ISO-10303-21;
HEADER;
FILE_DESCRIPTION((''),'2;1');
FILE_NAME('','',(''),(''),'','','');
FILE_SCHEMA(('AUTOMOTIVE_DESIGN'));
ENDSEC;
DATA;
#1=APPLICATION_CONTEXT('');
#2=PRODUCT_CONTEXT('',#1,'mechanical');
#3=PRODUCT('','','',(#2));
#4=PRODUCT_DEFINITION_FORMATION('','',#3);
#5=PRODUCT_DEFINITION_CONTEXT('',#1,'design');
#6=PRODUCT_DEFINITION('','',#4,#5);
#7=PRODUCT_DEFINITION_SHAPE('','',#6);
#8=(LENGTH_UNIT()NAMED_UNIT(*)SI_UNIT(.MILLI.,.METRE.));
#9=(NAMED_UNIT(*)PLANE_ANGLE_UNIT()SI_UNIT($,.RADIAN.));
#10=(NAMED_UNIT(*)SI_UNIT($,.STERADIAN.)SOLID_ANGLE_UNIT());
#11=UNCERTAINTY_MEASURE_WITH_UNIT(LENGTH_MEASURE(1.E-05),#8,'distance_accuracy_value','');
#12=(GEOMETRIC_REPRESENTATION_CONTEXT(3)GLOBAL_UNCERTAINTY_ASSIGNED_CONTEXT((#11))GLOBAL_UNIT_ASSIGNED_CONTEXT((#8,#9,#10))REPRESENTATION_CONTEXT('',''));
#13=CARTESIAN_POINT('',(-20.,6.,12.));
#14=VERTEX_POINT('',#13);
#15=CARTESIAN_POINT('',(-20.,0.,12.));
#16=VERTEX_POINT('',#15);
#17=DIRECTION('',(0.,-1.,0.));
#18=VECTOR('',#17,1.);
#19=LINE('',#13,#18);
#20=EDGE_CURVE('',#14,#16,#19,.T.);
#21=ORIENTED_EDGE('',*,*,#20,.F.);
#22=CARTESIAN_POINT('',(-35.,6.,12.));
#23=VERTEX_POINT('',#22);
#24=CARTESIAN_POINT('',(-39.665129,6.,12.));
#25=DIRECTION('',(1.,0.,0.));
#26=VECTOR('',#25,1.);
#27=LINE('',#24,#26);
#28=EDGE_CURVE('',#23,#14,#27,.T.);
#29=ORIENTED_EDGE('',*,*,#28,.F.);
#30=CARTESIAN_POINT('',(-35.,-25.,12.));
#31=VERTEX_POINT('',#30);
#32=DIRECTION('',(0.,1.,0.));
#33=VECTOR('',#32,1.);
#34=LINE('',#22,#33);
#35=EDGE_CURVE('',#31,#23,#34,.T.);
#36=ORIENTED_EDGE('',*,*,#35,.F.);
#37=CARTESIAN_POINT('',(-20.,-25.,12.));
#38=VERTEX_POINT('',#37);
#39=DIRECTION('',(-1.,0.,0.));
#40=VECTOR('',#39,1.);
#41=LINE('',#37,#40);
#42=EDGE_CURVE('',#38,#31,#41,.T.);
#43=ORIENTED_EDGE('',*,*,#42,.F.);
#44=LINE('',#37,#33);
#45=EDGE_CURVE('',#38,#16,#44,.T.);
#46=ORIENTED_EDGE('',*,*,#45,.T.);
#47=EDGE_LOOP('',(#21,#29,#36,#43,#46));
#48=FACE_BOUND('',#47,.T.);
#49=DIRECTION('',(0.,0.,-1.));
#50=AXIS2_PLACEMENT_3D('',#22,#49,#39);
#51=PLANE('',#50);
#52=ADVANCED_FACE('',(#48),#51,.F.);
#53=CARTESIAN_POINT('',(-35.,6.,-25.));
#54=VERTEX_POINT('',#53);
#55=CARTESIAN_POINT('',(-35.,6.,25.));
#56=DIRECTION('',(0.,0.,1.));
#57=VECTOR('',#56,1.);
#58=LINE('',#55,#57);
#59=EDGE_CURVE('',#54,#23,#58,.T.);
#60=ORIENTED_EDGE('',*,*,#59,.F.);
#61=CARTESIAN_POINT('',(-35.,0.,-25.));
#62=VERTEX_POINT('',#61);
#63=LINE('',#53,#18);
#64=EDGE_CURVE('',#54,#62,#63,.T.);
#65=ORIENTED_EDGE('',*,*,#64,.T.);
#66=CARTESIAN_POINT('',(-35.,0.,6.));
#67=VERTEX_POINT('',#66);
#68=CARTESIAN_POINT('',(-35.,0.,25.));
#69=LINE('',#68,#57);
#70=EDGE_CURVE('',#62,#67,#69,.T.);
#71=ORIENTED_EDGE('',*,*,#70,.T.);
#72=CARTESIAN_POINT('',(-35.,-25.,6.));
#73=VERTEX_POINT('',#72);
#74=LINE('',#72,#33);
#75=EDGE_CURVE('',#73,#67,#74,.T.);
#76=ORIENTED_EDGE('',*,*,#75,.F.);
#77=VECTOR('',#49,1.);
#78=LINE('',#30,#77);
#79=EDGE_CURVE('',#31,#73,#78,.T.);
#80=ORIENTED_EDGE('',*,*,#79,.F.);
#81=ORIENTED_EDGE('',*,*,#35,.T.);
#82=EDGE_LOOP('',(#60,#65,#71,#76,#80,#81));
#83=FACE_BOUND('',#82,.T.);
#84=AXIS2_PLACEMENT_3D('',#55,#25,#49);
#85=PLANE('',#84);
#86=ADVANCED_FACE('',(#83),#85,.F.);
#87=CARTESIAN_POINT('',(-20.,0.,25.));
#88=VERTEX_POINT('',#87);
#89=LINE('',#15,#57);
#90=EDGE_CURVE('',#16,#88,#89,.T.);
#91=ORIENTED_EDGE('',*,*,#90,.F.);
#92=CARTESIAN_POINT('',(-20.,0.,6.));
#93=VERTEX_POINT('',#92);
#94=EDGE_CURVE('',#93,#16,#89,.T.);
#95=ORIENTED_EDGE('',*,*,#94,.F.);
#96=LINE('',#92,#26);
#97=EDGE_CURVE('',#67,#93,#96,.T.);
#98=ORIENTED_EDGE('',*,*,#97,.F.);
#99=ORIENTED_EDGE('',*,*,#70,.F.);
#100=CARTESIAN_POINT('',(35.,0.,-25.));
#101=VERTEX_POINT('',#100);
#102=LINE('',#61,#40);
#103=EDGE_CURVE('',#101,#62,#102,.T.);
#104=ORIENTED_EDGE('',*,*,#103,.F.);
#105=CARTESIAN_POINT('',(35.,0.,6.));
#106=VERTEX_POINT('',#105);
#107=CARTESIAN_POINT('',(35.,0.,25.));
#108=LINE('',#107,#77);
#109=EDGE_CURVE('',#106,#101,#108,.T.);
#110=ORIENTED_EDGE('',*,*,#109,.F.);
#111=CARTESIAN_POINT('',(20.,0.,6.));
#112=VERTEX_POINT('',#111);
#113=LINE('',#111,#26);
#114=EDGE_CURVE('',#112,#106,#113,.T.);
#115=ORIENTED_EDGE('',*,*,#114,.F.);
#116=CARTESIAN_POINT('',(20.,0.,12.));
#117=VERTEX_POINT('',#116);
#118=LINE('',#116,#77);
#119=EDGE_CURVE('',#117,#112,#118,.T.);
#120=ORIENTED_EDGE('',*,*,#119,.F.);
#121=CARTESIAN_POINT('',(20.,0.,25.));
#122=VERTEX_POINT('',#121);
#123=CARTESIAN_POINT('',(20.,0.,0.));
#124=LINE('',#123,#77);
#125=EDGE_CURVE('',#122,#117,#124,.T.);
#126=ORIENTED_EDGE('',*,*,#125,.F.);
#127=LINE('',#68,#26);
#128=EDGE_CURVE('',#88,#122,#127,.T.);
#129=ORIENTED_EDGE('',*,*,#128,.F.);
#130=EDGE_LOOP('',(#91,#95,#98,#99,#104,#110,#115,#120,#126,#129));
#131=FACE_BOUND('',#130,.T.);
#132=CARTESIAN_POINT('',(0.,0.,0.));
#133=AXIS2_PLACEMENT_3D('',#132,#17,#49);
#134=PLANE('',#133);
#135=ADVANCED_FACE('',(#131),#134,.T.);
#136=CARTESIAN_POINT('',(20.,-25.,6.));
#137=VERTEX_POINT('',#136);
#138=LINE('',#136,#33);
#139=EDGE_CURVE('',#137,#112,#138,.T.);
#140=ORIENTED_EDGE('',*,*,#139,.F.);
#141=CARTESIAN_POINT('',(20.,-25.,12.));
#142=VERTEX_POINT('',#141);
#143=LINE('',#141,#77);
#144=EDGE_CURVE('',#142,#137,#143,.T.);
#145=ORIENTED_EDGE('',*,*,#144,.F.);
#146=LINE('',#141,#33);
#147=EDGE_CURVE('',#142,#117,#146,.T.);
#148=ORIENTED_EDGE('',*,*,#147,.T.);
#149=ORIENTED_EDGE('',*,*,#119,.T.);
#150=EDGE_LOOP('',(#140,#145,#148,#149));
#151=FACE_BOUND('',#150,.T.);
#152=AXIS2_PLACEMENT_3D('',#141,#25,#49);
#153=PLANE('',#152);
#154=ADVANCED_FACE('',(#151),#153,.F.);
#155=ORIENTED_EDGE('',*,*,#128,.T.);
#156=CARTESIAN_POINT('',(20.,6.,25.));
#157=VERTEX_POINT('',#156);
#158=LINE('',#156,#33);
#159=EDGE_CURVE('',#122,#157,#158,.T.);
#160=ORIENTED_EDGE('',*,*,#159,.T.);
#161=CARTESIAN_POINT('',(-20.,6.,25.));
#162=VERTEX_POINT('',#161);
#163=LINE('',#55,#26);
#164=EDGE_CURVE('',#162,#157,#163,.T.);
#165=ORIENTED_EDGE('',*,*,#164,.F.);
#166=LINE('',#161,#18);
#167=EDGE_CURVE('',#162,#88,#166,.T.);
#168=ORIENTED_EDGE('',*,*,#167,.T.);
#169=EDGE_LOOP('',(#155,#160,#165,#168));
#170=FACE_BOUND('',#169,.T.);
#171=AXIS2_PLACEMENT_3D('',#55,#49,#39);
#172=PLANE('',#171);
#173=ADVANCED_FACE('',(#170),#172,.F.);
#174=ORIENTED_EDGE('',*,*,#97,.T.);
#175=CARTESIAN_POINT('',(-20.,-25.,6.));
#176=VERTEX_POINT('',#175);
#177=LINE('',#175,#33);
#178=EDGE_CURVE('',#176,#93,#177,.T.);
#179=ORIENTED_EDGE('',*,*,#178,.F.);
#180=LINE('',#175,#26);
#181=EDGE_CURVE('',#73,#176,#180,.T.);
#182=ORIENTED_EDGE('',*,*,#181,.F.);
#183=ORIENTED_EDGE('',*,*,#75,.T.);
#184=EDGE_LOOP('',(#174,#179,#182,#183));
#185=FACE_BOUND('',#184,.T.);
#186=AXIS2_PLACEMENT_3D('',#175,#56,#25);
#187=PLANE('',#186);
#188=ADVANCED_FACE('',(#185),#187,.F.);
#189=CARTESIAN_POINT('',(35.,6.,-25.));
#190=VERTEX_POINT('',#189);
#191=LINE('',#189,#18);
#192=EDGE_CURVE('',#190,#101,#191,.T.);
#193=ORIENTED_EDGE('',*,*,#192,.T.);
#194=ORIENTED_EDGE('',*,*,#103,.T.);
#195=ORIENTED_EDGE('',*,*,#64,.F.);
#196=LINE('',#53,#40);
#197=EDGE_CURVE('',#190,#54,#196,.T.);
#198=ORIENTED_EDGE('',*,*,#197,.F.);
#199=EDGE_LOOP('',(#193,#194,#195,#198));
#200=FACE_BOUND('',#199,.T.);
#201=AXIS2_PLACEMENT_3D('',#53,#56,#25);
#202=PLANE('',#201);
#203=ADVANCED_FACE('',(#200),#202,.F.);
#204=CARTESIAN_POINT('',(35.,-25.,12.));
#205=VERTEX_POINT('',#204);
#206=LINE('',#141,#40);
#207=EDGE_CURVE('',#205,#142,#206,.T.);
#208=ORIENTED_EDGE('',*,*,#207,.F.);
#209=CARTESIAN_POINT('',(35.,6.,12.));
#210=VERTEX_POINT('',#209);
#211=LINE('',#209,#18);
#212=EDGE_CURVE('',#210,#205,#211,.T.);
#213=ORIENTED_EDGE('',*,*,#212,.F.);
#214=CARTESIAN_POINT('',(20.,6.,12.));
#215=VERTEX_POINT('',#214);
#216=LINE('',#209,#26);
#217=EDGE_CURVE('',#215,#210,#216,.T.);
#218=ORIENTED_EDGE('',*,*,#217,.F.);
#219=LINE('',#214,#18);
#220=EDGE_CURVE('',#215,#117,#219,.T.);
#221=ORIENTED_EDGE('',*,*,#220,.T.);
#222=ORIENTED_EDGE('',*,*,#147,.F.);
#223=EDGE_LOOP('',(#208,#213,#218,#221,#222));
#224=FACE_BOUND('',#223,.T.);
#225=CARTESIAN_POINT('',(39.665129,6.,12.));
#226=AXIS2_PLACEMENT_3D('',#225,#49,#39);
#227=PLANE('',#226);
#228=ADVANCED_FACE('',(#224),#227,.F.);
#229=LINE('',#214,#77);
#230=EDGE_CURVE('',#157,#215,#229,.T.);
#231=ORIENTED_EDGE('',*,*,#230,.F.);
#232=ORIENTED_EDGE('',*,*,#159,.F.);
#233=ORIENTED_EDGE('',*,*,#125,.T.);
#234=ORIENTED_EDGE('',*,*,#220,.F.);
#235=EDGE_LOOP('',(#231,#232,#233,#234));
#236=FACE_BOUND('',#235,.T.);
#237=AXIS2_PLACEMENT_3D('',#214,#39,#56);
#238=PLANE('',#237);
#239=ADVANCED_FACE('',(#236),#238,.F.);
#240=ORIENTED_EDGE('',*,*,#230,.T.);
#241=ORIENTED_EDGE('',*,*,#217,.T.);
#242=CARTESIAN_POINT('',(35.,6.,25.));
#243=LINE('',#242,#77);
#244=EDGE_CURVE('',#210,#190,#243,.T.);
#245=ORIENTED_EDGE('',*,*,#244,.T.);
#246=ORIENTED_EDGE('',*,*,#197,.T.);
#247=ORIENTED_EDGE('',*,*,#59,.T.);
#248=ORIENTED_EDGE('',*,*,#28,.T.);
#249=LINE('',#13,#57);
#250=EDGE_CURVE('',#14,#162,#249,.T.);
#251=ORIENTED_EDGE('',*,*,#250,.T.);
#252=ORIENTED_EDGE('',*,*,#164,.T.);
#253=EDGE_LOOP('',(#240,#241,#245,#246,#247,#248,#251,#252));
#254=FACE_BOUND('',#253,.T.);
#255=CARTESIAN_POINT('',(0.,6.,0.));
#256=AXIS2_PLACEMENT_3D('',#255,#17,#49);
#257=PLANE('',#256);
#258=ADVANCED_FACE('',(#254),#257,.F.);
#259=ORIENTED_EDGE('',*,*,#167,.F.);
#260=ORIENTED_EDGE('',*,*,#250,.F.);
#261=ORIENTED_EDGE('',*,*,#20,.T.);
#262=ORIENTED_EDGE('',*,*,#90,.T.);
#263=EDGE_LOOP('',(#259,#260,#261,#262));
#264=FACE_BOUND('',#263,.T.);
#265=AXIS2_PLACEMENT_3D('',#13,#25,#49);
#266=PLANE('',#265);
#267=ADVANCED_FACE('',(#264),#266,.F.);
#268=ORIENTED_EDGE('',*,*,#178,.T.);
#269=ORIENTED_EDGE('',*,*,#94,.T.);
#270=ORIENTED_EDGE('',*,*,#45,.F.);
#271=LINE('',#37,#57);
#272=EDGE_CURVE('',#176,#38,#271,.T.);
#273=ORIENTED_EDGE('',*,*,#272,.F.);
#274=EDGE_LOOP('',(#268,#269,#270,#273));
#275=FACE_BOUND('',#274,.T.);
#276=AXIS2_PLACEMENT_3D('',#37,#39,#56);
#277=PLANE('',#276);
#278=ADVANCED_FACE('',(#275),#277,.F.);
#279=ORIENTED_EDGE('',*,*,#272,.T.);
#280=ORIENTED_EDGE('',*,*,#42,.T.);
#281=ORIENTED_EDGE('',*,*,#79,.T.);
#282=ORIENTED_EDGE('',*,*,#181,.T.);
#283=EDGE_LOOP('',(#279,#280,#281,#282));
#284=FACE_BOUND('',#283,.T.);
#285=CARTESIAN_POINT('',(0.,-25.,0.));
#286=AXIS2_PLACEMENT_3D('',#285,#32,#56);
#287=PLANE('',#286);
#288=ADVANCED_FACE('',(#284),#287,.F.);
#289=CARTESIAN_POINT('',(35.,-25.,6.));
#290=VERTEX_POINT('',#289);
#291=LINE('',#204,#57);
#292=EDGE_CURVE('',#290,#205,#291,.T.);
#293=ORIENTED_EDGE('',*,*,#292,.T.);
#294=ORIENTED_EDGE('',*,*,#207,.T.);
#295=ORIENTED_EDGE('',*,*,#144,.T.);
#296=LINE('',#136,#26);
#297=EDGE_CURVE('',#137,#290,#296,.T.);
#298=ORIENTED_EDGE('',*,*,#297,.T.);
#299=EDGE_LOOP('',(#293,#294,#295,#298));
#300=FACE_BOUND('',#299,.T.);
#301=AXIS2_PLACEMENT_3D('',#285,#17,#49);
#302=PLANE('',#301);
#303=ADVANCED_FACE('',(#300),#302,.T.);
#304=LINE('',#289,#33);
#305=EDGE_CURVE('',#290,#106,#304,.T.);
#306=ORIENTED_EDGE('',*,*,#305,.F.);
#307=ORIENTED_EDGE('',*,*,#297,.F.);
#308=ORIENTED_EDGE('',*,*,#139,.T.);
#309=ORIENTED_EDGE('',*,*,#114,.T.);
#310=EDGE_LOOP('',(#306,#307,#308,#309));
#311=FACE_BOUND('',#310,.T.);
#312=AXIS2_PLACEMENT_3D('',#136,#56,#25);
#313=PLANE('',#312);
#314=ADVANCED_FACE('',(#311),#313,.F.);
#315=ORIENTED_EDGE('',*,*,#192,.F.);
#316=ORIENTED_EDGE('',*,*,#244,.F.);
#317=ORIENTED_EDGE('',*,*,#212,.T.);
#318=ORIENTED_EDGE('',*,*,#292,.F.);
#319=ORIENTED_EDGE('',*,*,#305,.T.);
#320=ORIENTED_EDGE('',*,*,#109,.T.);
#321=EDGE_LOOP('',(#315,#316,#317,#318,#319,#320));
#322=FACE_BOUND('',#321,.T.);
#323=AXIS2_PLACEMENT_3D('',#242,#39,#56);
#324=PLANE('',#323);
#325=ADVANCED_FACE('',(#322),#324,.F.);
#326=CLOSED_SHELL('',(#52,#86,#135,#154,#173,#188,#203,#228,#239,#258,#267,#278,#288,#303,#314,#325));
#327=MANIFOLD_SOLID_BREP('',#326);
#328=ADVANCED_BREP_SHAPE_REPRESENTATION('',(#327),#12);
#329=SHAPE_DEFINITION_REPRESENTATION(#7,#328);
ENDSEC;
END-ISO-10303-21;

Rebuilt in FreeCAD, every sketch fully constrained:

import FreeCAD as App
import Part
import Sketcher
Q = App.Units.Quantity


def add_polygon(sketch, points):
    """Adds a closed chain of lines whose ends are joined by coincident constraints."""
    first, n = sketch.GeometryCount, len(points)
    for a, b in zip(points, points[1:] + points[:1]):
        sketch.addGeometry(Part.LineSegment(App.Vector(*a, 0), App.Vector(*b, 0)), False)
    for i in range(n):
        sketch.addConstraint(Sketcher.Constraint("Coincident", first + i, 2, first + (i + 1) % n, 1))

doc = App.newDocument("Part")
body = doc.addObject("PartDesign::Body", "Body")

sketch1 = doc.addObject("Sketcher::SketchObject", "Sketch")
body.addObject(sketch1)
sketch1.AttachmentSupport = (doc.XZ_Plane, [""])
sketch1.MapMode = "FlatFace"
add_polygon(sketch1, [(-35, -25), (-35, 25), (35, 25), (35, -25)])
sketch1.addConstraint(Sketcher.Constraint("Vertical", 0))
sketch1.addConstraint(Sketcher.Constraint("Horizontal", 1))
sketch1.addConstraint(Sketcher.Constraint("Vertical", 2))
sketch1.addConstraint(Sketcher.Constraint("Horizontal", 3))
sketch1.addConstraint(Sketcher.Constraint("Symmetric", 0, 2, 2, 2, -1, 1))
sketch1.addConstraint(Sketcher.Constraint("DistanceX", 1, 1, 1, 2, Q("70 mm")))
sketch1.addConstraint(Sketcher.Constraint("DistanceY", 0, 1, 0, 2, Q("50 mm")))
pad1 = doc.addObject("PartDesign::Pad", "Pad")
body.addObject(pad1)
pad1.Profile = sketch1
pad1.Length = 6
pad1.Reversed = True

sketch2 = doc.addObject("Sketcher::SketchObject", "Sketch001")
body.addObject(sketch2)
sketch2.AttachmentSupport = (doc.XZ_Plane, [""])
sketch2.MapMode = "FlatFace"
add_polygon(sketch2, [(-20, 12), (-20, 37), (-40, 37), (-40, 12)])
add_polygon(sketch2, [(20, 12), (40, 12), (40, 37), (20, 37)])
sketch2.addConstraint(Sketcher.Constraint("Vertical", 0))
sketch2.addConstraint(Sketcher.Constraint("Horizontal", 1))
sketch2.addConstraint(Sketcher.Constraint("Vertical", 2))
sketch2.addConstraint(Sketcher.Constraint("Horizontal", 3))
sketch2.addConstraint(Sketcher.Constraint("Horizontal", 4))
sketch2.addConstraint(Sketcher.Constraint("Vertical", 5))
sketch2.addConstraint(Sketcher.Constraint("Horizontal", 6))
sketch2.addConstraint(Sketcher.Constraint("Vertical", 7))
sketch2.addConstraint(Sketcher.Constraint("Symmetric", 2, 2, 4, 2, -2))
sketch2.addConstraint(Sketcher.Constraint("Symmetric", 0, 2, 6, 2, -2))
sketch2.addConstraint(Sketcher.Constraint("DistanceX", 0, 2, -1, 1, Q("20 mm")))
sketch2.addConstraint(Sketcher.Constraint("DistanceY", -1, 1, 2, 2, Q("12 mm")))
sketch2.addConstraint(Sketcher.Constraint("DistanceX", 1, 2, 1, 1, Q("19.665129 mm")))
sketch2.addConstraint(Sketcher.Constraint("DistanceY", 0, 1, 0, 2, Q("25.174487 mm")))
pocket1 = doc.addObject("PartDesign::Pocket", "Pocket")
body.addObject(pocket1)
pocket1.Profile = sketch2
pocket1.Type = "ThroughAll"

sketch3 = doc.addObject("Sketcher::SketchObject", "Sketch002")
body.addObject(sketch3)
sketch3.AttachmentSupport = (doc.XZ_Plane, [""])
sketch3.MapMode = "FlatFace"
add_polygon(sketch3, [(-35, 12), (-35, 6), (-20, 6), (-20, 12)])
add_polygon(sketch3, [(20, 12), (20, 6), (35, 6), (35, 12)])
sketch3.addConstraint(Sketcher.Constraint("Vertical", 0))
sketch3.addConstraint(Sketcher.Constraint("Horizontal", 1))
sketch3.addConstraint(Sketcher.Constraint("Vertical", 2))
sketch3.addConstraint(Sketcher.Constraint("Horizontal", 3))
sketch3.addConstraint(Sketcher.Constraint("Vertical", 4))
sketch3.addConstraint(Sketcher.Constraint("Horizontal", 5))
sketch3.addConstraint(Sketcher.Constraint("Vertical", 6))
sketch3.addConstraint(Sketcher.Constraint("Horizontal", 7))
sketch3.addConstraint(Sketcher.Constraint("Symmetric", 1, 2, 4, 2, -2))
sketch3.addConstraint(Sketcher.Constraint("Symmetric", 3, 2, 6, 2, -2))
sketch3.addConstraint(Sketcher.Constraint("DistanceX", 1, 1, 1, 2, Q("15 mm")))
sketch3.addConstraint(Sketcher.Constraint("DistanceY", 0, 2, 0, 1, Q("6 mm")))
sketch3.addConstraint(Sketcher.Constraint("DistanceX", 0, 2, -1, 1, Q("35 mm")))
sketch3.addConstraint(Sketcher.Constraint("DistanceY", -1, 1, 0, 2, Q("6 mm")))
pad2 = doc.addObject("PartDesign::Pad", "Pad001")
body.addObject(pad2)
pad2.Profile = sketch3
pad2.Length = 25

doc.recompute()
